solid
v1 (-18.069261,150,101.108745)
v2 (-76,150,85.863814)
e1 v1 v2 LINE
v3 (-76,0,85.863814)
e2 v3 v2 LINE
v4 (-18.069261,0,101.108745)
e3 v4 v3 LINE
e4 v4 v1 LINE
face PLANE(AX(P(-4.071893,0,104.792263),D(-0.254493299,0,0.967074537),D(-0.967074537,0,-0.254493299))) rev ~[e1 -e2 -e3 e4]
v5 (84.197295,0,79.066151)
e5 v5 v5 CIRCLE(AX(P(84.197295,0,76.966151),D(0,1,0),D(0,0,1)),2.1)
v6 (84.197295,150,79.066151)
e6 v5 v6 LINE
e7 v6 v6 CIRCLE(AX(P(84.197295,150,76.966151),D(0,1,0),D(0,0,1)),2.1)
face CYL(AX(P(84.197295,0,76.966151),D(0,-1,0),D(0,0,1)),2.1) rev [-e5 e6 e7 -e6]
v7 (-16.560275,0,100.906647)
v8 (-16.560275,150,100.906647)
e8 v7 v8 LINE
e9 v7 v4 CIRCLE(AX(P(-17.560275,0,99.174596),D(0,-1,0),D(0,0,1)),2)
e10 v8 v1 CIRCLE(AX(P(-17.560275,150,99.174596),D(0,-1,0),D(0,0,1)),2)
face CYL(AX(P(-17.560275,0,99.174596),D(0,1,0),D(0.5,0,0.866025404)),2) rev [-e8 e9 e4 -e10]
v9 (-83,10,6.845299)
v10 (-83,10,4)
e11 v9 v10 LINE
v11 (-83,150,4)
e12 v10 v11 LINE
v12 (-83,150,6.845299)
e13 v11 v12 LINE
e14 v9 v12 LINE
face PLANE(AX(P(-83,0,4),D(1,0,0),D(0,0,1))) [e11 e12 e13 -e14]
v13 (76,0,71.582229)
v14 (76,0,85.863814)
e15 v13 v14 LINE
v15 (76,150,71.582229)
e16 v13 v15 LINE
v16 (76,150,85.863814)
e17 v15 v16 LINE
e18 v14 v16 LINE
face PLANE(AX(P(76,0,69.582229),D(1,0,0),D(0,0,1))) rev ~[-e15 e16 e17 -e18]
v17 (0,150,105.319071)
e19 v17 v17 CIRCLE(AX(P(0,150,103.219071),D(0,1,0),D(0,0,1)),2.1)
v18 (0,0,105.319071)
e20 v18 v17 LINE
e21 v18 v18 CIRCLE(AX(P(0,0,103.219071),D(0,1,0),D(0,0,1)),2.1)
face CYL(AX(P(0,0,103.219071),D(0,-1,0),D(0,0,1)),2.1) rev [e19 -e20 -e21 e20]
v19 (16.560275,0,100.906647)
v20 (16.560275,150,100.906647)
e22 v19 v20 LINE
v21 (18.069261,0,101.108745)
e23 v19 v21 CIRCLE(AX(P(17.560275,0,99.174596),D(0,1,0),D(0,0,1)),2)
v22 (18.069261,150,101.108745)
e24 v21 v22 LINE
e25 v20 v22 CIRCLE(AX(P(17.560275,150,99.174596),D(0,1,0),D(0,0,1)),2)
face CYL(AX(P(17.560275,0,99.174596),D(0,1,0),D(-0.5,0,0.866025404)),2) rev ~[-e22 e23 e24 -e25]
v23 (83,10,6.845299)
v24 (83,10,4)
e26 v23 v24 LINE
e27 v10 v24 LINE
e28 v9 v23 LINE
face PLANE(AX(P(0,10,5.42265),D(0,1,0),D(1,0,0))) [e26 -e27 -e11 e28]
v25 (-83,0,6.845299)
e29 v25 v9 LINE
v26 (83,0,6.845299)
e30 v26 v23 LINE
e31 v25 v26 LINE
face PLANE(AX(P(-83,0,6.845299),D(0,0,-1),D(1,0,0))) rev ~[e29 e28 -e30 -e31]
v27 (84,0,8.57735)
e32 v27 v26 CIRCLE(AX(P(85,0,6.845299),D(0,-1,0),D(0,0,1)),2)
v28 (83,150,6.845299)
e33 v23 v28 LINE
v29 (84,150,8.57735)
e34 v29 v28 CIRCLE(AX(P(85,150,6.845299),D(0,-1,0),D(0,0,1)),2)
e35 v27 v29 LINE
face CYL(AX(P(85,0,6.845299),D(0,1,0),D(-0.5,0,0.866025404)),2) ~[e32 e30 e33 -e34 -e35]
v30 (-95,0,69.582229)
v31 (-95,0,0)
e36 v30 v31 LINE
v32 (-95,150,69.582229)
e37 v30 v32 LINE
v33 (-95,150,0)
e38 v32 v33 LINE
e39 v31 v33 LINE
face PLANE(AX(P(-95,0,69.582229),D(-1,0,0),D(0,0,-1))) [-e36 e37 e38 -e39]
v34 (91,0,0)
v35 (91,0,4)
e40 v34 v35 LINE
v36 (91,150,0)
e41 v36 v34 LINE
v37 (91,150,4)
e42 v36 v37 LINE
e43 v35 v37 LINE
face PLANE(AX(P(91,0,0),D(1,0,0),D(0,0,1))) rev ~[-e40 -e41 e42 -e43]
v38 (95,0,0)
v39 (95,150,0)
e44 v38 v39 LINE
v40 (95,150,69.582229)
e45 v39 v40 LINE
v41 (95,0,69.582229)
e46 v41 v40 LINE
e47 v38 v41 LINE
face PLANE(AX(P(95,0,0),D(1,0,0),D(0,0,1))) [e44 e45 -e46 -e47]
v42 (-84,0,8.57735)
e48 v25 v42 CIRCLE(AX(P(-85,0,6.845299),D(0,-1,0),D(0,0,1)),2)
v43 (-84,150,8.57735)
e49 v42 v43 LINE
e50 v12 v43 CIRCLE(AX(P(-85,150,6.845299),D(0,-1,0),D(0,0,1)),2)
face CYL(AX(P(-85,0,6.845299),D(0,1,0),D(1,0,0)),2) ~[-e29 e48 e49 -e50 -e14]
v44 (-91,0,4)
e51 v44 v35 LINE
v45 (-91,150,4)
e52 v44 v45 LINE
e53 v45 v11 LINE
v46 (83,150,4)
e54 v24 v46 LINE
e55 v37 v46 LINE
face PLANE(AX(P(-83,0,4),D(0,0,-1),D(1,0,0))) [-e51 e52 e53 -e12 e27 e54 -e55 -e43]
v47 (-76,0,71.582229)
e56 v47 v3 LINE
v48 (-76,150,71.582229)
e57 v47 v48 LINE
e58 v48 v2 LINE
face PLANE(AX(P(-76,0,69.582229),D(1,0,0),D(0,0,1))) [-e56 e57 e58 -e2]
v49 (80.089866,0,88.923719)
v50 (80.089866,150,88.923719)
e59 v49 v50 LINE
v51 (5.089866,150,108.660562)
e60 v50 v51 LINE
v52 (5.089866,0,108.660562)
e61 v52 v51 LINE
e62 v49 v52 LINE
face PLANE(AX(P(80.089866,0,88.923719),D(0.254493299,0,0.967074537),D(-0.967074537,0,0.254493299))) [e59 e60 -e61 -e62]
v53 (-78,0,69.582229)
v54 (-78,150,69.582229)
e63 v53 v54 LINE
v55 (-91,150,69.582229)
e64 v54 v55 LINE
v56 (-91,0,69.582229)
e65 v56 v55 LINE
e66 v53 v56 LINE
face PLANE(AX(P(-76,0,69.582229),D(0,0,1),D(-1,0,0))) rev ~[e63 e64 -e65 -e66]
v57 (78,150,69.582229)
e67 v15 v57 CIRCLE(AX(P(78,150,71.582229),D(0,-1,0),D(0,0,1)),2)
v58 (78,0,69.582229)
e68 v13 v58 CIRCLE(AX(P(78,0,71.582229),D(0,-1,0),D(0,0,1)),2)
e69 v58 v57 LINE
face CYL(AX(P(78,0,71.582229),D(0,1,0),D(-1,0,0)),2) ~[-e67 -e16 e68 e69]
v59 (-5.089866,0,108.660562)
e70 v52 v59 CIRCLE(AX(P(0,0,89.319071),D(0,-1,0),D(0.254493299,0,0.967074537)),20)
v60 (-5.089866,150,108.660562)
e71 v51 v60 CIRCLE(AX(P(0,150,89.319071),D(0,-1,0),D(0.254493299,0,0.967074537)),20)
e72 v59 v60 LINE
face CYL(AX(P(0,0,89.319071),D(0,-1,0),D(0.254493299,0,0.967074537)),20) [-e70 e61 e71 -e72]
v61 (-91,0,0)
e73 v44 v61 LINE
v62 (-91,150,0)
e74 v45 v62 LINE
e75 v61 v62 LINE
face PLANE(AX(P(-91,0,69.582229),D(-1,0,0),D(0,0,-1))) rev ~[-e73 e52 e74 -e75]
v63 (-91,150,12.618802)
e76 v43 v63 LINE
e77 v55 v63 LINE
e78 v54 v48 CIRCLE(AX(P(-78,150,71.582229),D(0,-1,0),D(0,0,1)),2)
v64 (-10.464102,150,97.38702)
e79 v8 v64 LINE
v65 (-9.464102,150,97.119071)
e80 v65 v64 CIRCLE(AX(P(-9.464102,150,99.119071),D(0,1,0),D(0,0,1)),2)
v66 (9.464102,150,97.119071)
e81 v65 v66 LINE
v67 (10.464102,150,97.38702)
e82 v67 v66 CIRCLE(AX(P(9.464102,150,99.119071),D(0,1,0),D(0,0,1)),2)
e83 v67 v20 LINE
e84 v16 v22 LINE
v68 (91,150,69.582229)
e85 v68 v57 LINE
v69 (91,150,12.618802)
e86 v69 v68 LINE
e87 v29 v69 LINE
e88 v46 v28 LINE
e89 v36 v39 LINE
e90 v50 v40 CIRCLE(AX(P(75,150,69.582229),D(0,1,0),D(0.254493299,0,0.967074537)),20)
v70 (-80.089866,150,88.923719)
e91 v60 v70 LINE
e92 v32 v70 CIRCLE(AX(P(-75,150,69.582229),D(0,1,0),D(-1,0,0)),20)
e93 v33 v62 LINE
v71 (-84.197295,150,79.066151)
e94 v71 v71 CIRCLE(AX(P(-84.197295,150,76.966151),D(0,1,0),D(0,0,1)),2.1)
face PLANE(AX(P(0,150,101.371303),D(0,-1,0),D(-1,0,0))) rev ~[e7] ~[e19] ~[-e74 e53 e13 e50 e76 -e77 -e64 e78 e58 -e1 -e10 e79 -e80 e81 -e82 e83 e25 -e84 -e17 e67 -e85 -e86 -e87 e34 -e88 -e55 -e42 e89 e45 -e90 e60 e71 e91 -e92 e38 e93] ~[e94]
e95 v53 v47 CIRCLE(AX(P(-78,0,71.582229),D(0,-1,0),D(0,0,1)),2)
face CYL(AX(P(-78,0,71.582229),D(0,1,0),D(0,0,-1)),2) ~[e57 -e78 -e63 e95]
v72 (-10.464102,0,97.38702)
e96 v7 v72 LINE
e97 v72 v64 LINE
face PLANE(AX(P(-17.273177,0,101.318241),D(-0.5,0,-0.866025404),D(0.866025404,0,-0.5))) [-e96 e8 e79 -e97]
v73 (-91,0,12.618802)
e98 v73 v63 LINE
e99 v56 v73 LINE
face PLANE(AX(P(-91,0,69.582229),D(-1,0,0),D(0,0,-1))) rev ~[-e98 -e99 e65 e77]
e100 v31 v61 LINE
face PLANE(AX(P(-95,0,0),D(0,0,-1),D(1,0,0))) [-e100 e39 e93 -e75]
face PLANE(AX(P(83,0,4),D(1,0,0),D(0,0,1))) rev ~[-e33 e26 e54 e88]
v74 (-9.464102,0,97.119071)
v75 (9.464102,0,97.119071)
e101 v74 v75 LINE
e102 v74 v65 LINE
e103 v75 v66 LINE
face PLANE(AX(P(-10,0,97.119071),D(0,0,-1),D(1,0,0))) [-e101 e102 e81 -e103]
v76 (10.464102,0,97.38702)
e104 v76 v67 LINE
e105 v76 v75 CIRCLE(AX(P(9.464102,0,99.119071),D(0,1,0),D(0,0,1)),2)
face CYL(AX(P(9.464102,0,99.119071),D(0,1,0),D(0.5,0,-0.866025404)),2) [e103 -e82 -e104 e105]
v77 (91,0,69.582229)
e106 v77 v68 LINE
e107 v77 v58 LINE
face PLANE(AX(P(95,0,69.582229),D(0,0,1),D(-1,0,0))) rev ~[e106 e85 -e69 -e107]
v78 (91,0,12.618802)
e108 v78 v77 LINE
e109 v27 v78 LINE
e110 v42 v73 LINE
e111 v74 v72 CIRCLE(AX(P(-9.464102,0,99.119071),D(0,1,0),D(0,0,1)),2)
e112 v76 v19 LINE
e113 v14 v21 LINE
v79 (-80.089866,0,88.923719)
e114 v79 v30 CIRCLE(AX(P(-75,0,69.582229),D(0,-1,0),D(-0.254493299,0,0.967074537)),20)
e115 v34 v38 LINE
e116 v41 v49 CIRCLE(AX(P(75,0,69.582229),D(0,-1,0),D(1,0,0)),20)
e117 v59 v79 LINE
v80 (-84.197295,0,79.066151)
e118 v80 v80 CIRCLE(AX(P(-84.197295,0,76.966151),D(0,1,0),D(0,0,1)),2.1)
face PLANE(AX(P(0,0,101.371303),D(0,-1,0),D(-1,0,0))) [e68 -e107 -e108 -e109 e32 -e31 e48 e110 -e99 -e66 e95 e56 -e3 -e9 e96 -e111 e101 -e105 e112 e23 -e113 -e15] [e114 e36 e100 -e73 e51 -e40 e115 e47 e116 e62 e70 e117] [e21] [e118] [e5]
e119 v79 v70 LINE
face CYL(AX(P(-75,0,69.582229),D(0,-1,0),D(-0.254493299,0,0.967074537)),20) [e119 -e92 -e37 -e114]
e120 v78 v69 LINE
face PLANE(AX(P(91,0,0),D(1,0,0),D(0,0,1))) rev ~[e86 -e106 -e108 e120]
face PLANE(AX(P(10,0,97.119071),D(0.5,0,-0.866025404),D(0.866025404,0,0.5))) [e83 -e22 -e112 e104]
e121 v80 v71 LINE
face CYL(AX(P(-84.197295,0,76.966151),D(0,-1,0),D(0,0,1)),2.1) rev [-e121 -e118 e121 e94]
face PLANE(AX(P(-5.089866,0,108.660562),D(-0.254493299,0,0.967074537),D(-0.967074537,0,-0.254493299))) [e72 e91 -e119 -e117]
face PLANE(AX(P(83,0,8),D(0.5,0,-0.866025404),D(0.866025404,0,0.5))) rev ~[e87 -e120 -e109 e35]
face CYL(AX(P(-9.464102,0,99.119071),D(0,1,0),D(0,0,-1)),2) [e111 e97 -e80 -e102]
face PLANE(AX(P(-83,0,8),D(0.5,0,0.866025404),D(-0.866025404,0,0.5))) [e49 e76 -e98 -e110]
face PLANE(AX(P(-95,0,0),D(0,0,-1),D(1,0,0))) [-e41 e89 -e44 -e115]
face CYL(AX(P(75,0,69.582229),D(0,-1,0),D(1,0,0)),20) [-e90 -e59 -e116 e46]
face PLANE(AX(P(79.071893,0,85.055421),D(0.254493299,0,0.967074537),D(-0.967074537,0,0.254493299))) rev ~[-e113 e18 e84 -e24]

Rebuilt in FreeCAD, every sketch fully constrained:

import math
import FreeCAD as App
import Part
import Sketcher
from FreeCAD import Vector
Q = App.Units.Quantity


def edges_at(feature, points):
    """Names of the edges that pass closest to the given points."""
    edges = feature.Shape.Edges
    near = lambda p: min(range(len(edges)), key=lambda i: edges[i].distToShape(Part.Vertex(*p))[0])
    return sorted({f"Edge{near(p) + 1}" for p in points})


def faces_at(feature, points):
    """Names of the faces that lie closest to the given points."""
    faces = feature.Shape.Faces
    near = lambda p: min(range(len(faces)), key=lambda i: faces[i].distToShape(Part.Vertex(*p))[0])
    return sorted({f"Face{near(p) + 1}" for p in points})


def add_polygon(sketch, points):
    """Adds a closed chain of lines whose ends are joined by coincident constraints."""
    first, n = sketch.GeometryCount, len(points)
    for a, b in zip(points, points[1:] + points[:1]):
        sketch.addGeometry(Part.LineSegment(App.Vector(*a, 0), App.Vector(*b, 0)), False)
    for i in range(n):
        sketch.addConstraint(Sketcher.Constraint("Coincident", first + i, 2, first + (i + 1) % n, 1))

doc = App.newDocument("Part")
params = doc.addObject("Spreadsheet::Sheet", "Params")
for row, (alias, value) in enumerate([
    ("sketch1_radius", "20 mm"),
    ("sketch1_width", "190 mm"),
    ("pad1_length", "150 mm"),
    ("thickness_wall", "4 mm"),
    ("sketch2_width", "8 mm"),
    ("sketch2_width2", "19 mm"),
    ("sketch2_height", "4 mm"),
    ("pad2_length", "150 mm"),
    ("fillet_radius", "2 mm"),
    ("sketch3_diameter", "4.2 mm"),
    ("pocket1_length", "150 mm"),
    ("sketch4_width", "166 mm"),
    ("pad3_length", "10 mm"),
    ("sketch5_width", "20 mm"),
    ("pad4_length", "150 mm"),
    ("fillet2_radius", "2 mm"),
    ("sketch6_diameter", "4.2 mm"),
    ("pocket2_length", "150 mm"),
], start=1):
    params.set(f"A{row}", alias)
    params.set(f"B{row}", "=" + value)
    params.setAlias(f"B{row}", alias)

body = doc.addObject("PartDesign::Body", "Body")

# Sketch on XZ plane
sketch1 = body.newObject("Sketcher::SketchObject", "Sketch")
sketch1.AttachmentSupport = (doc.getObject("XZ_Plane"), [""])
sketch1.MapMode = "FlatFace"
sketch1.addGeometry([
    Part.LineSegment(Vector(95, 70, 0), Vector(95, 0, 0)),  # 0
    Part.LineSegment(Vector(95, 0, 0), Vector(-95, 0, 0)),  # 1
    Part.LineSegment(Vector(-95, 0, 0), Vector(-95, 70, 0)),  # 2
    Part.ArcOfCircle(Part.Circle(Vector(-75, 70, 0), Vector(0, 0, 1), 20), math.radians(105), math.radians(180)),  # 3
    Part.LineSegment(Vector(-80, 89, 0), Vector(-5, 109, 0)),  # 4
    Part.ArcOfCircle(Part.Circle(Vector(0, 89, 0), Vector(0, 0, 1), 20), math.radians(75), math.radians(105)),  # 5
    Part.LineSegment(Vector(5, 109, 0), Vector(80, 89, 0)),  # 6
    Part.ArcOfCircle(Part.Circle(Vector(75, 70, 0), Vector(0, 0, 1), 20), math.radians(0), math.radians(75)),  # 7
], False)
sketch1.addConstraint([
    Sketcher.Constraint("Coincident", 0, 2, 1, 1),
    Sketcher.Constraint("Coincident", 1, 2, 2, 1),
    Sketcher.Constraint("Tangent", 2, 2, 3, 2),
    Sketcher.Constraint("Tangent", 3, 1, 4, 1),
    Sketcher.Constraint("Tangent", 4, 2, 5, 2),
    Sketcher.Constraint("Tangent", 5, 1, 6, 1),
    Sketcher.Constraint("Tangent", 6, 2, 7, 2),
    Sketcher.Constraint("Tangent", 7, 1, 0, 1),
    Sketcher.Constraint("Vertical", 0),
    Sketcher.Constraint("Horizontal", 1),
    Sketcher.Constraint("Vertical", 2),
    Sketcher.Constraint("Equal", 3, 5),
    Sketcher.Constraint("Equal", 5, 7),
    Sketcher.Constraint("Symmetric", 0, 2, 1, 2, -1, 1),
    Sketcher.Constraint("Symmetric", 4, 2, 5, 1, -2),
    Sketcher.Constraint("Radius", 3, Q("20 mm")),
    Sketcher.Constraint("DistanceX", 1, 2, 1, 1, Q("190 mm")),
    Sketcher.Constraint("DistanceY", 0, 2, 0, 1, Q("69.582229 mm")),
    Sketcher.Constraint("DistanceY", -1, 1, 5, 3, Q("89.319071 mm")),
])
sketch1.setExpression("Constraints[15]", "Params.sketch1_radius")
sketch1.setExpression("Constraints[16]", "Params.sketch1_width")
pad1 = body.newObject("PartDesign::Pad", "Pad")
pad1.Profile = sketch1
pad1.setExpression("Length", "Params.pad1_length")
pad1.Reversed = True
doc.recompute()

thickness = body.newObject("PartDesign::Thickness", "Thickness")
thickness.Base = (pad1, faces_at(pad1, [(0, 150, 54.66), (0, 75, 0), (0, 0, 54.66)]))
thickness.setExpression("Value", "Params.thickness_wall")
thickness.Reversed = True
thickness.Join = "Intersection"

# Sketch on XZ plane
sketch2 = body.newObject("Sketcher::SketchObject", "Sketch001")
sketch2.AttachmentSupport = (doc.getObject("XZ_Plane"), [""])
sketch2.MapMode = "FlatFace"
add_polygon(sketch2, [(-83, 4), (-91, 4), (-91, 12.6), (-83, 8)])  # lines 0-3
add_polygon(sketch2, [(-76, 69.6), (-95, 69.6), (-90.8, 81.8), (-80.3, 88.9), (-76, 85.9)])  # lines 4-8
add_polygon(sketch2, [(76, 69.6), (76, 85.9), (80.3, 88.9), (90.8, 81.8), (95, 69.6)])  # lines 9-13
add_polygon(sketch2, [(83, 8), (91, 12.6), (91, 4), (83, 4)])  # lines 14-17
sketch2.addConstraint([
    Sketcher.Constraint("Horizontal", 0),
    Sketcher.Constraint("Vertical", 1),
    Sketcher.Constraint("Vertical", 3),
    Sketcher.Constraint("Horizontal", 4),
    Sketcher.Constraint("Vertical", 8),
    Sketcher.Constraint("Vertical", 9),
    Sketcher.Constraint("Horizontal", 13),
    Sketcher.Constraint("Vertical", 15),
    Sketcher.Constraint("Horizontal", 16),
    Sketcher.Constraint("Vertical", 17),
    Sketcher.Constraint("Symmetric", 7, 2, 9, 2, -2),
    Sketcher.Constraint("Symmetric", 6, 2, 10, 2, -2),
    Sketcher.Constraint("Symmetric", 5, 2, 11, 2, -2),
    Sketcher.Constraint("Symmetric", 4, 2, 12, 2, -2),
    Sketcher.Constraint("Symmetric", 1, 2, 14, 2, -2),
    Sketcher.Constraint("Symmetric", 3, 2, 16, 2, -2),
    Sketcher.Constraint("Horizontal", 2, 2, 17, 2),
    Sketcher.Constraint("DistanceX", 0, 2, 0, 1, Q("8 mm")),
    Sketcher.Constraint("DistanceX", 4, 2, 4, 1, Q("19 mm")),
    Sketcher.Constraint("DistanceY", 3, 2, 3, 1, Q("4 mm")),
    Sketcher.Constraint("Angle", 2, Q("-30 deg")),
    Sketcher.Constraint("DistanceX", 0, 2, -1, 1, Q("91 mm")),
    Sketcher.Constraint("DistanceY", -1, 1, 0, 2, Q("4 mm")),
    Sketcher.Constraint("DistanceX", 4, 2, -1, 1, Q("95 mm")),
    Sketcher.Constraint("Distance", 7, Q("5.24525 mm")),
    Sketcher.Constraint("DistanceY", 8, 2, 8, 1, Q("16.281585 mm")),
    Sketcher.Constraint("DistanceY", -1, 1, 4, 2, Q("69.582229 mm")),
    Sketcher.Constraint("DistanceX", 5, 2, -1, 1, Q("90.839781 mm")),
    Sketcher.Constraint("DistanceY", 5, 2, 6, 2, Q("7.07417 mm")),
    Sketcher.Constraint("DistanceY", 7, 2, 6, 2, Q("3.00329 mm")),
])
sketch2.setExpression("Constraints[35]", "Params.sketch2_width")
sketch2.setExpression("Constraints[36]", "Params.sketch2_width2")
sketch2.setExpression("Constraints[37]", "Params.sketch2_height")
pad2 = body.newObject("PartDesign::Pad", "Pad001")
pad2.Profile = sketch2
pad2.setExpression("Length", "Params.pad2_length")
pad2.Reversed = True
doc.recompute()

fillet = body.newObject("PartDesign::Fillet", "Fillet")
fillet.Base = (pad2, edges_at(pad2, [
    (83, 75, 8),
    (76, 75, 69.582),
    (-76, 75, 69.582),
    (-83, 75, 8),
]))
fillet.setExpression("Radius", "Params.fillet_radius")

# Sketch on XZ plane
sketch3 = body.newObject("Sketcher::SketchObject", "Sketch002")
sketch3.AttachmentSupport = (doc.getObject("XZ_Plane"), [""])
sketch3.MapMode = "FlatFace"
sketch3.addGeometry([
    Part.Circle(Vector(84.2, 77, 0), Vector(0, 0, 1), 2.1),
    Part.Circle(Vector(-84.2, 77, 0), Vector(0, 0, 1), 2.1),
], False)
sketch3.addConstraint([
    Sketcher.Constraint("Equal", 0, 1),
    Sketcher.Constraint("Symmetric", 0, 3, 1, 3, -2),
    Sketcher.Constraint("Diameter", 0, Q("4.2 mm")),
    Sketcher.Constraint("DistanceY", -1, 1, 0, 3, Q("76.966151 mm")),
    Sketcher.Constraint("DistanceX", 1, 3, 0, 3, Q("168.394589 mm")),
])
sketch3.setExpression("Constraints[2]", "Params.sketch3_diameter")
pocket1 = body.newObject("PartDesign::Pocket", "Pocket")
pocket1.Profile = sketch3
pocket1.setExpression("Length", "Params.pocket1_length")

# Sketch on XZ plane
sketch4 = body.newObject("Sketcher::SketchObject", "Sketch003")
sketch4.AttachmentSupport = (doc.getObject("XZ_Plane"), [""])
sketch4.MapMode = "FlatFace"
add_polygon(sketch4, [(-83, 4), (-83, 6.8), (83, 6.8), (83, 4)])  # lines 0-3
sketch4.addConstraint([
    Sketcher.Constraint("Vertical", 0),
    Sketcher.Constraint("Horizontal", 1),
    Sketcher.Constraint("Vertical", 2),
    Sketcher.Constraint("Horizontal", 3),
    Sketcher.Constraint("DistanceX", 1, 1, 1, 2, Q("166 mm")),
    Sketcher.Constraint("DistanceX", 0, 2, -1, 1, Q("83 mm")),
    Sketcher.Constraint("DistanceY", -1, 1, 2, 2, Q("4 mm")),
    Sketcher.Constraint("DistanceY", 0, 1, 0, 2, Q("2.845299 mm")),
])
sketch4.setExpression("Constraints[8]", "Params.sketch4_width")
pad3 = body.newObject("PartDesign::Pad", "Pad002")
pad3.Profile = sketch4
pad3.setExpression("Length", "Params.pad3_length")
pad3.Reversed = True

# Sketch on XZ plane
sketch5 = body.newObject("Sketcher::SketchObject", "Sketch004")
sketch5.AttachmentSupport = (doc.getObject("XZ_Plane"), [""])
sketch5.MapMode = "FlatFace"
add_polygon(sketch5, [(17, 101), (10, 97), (-10, 97), (-17, 101), (0, 108)])  # lines 0-4
sketch5.addConstraint([
    Sketcher.Constraint("Horizontal", 1),
    Sketcher.Constraint("Symmetric", 2, 2, 4, 2, -2),
    Sketcher.Constraint("PointOnObject", 3, 2, -2),
    Sketcher.Constraint("Equal", 0, 2),
    Sketcher.Constraint("DistanceX", 1, 2, 1, 1, Q("20 mm")),
    Sketcher.Constraint("Angle", 0, Q("-150 deg")),
    Sketcher.Constraint("Distance", 0, Q("8.398341 mm")),
    Sketcher.Constraint("Distance", 3, Q("18.51045 mm")),
    Sketcher.Constraint("DistanceY", -1, 1, 0, 2, Q("97.119071 mm")),
])
sketch5.setExpression("Constraints[9]", "Params.sketch5_width")
pad4 = body.newObject("PartDesign::Pad", "Pad003")
pad4.Profile = sketch5
pad4.setExpression("Length", "Params.pad4_length")
pad4.Reversed = True
doc.recompute()

fillet2 = body.newObject("PartDesign::Fillet", "Fillet001")
fillet2.Base = (pad4, edges_at(pad4, [
    (10, 75, 97.119),
    (-10, 75, 97.119),
    (-17.273, 75, 101.318),
    (17.273, 75, 101.318),
]))
fillet2.setExpression("Radius", "Params.fillet2_radius")

# Sketch on XZ plane
sketch6 = body.newObject("Sketcher::SketchObject", "Sketch005")
sketch6.AttachmentSupport = (doc.getObject("XZ_Plane"), [""])
sketch6.MapMode = "FlatFace"
sketch6.addGeometry(Part.Circle(Vector(0, 103.2, 0), Vector(0, 0, 1), 2.1), False)
sketch6.addConstraint([
    Sketcher.Constraint("PointOnObject", 0, 3, -2),
    Sketcher.Constraint("Diameter", 0, Q("4.2 mm")),
    Sketcher.Constraint("DistanceY", -1, 1, 0, 3, Q("103.219071 mm")),
])
sketch6.setExpression("Constraints[1]", "Params.sketch6_diameter")
pocket2 = body.newObject("PartDesign::Pocket", "Pocket001")
pocket2.Profile = sketch6
pocket2.setExpression("Length", "Params.pocket2_length")

doc.recompute()
